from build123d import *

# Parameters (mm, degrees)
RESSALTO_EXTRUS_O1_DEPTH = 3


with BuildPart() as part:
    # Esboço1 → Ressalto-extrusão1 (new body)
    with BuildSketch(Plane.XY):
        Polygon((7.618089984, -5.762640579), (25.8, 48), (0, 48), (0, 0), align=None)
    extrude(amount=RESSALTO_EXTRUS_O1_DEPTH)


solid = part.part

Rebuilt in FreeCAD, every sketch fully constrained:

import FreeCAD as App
import Part
import Sketcher
Q = App.Units.Quantity

doc = App.newDocument("Part")
body = doc.addObject("PartDesign::Body", "Body")

sketch1 = body.newObject("Sketcher::SketchObject", "Sketch")
sketch1.AttachmentSupport = (doc.getObject("XY_Plane"), [""])
sketch1.MapMode = "FlatFace"
sketch1.addGeometry(Part.LineSegment(App.Vector(8, -6, 0), App.Vector(26, 48, 0)), False)
sketch1.addGeometry(Part.LineSegment(App.Vector(26, 48, 0), App.Vector(0, 48, 0)), False)
sketch1.addGeometry(Part.LineSegment(App.Vector(0, 48, 0), App.Vector(0, 0, 0)), False)
sketch1.addGeometry(Part.LineSegment(App.Vector(0, 0, 0), App.Vector(8, -6, 0)), False)
sketch1.addConstraint(Sketcher.Constraint("Coincident", 0, 2, 1, 1))
sketch1.addConstraint(Sketcher.Constraint("Coincident", 1, 2, 2, 1))
sketch1.addConstraint(Sketcher.Constraint("Coincident", 2, 2, 3, 1))
sketch1.addConstraint(Sketcher.Constraint("Coincident", 3, 2, 0, 1))
sketch1.addConstraint(Sketcher.Constraint("Horizontal", 1))
sketch1.addConstraint(Sketcher.Constraint("Vertical", 2))
sketch1.addConstraint(Sketcher.Constraint("Coincident", 2, 2, -1, 1))
sketch1.addConstraint(Sketcher.Constraint("DistanceY", 2, 2, 2, 1, Q("48 mm")))
sketch1.addConstraint(Sketcher.Constraint("DistanceX", 1, 2, 1, 1, Q("25.8 mm")))
sketch1.addConstraint(Sketcher.Constraint("DistanceX", -1, 1, 3, 2, Q("7.61809 mm")))
sketch1.addConstraint(Sketcher.Constraint("DistanceY", 3, 2, -1, 1, Q("5.762641 mm")))
pad1 = body.newObject("PartDesign::Pad", "Pad")
pad1.Profile = sketch1
pad1.Length = 3

doc.recompute()
